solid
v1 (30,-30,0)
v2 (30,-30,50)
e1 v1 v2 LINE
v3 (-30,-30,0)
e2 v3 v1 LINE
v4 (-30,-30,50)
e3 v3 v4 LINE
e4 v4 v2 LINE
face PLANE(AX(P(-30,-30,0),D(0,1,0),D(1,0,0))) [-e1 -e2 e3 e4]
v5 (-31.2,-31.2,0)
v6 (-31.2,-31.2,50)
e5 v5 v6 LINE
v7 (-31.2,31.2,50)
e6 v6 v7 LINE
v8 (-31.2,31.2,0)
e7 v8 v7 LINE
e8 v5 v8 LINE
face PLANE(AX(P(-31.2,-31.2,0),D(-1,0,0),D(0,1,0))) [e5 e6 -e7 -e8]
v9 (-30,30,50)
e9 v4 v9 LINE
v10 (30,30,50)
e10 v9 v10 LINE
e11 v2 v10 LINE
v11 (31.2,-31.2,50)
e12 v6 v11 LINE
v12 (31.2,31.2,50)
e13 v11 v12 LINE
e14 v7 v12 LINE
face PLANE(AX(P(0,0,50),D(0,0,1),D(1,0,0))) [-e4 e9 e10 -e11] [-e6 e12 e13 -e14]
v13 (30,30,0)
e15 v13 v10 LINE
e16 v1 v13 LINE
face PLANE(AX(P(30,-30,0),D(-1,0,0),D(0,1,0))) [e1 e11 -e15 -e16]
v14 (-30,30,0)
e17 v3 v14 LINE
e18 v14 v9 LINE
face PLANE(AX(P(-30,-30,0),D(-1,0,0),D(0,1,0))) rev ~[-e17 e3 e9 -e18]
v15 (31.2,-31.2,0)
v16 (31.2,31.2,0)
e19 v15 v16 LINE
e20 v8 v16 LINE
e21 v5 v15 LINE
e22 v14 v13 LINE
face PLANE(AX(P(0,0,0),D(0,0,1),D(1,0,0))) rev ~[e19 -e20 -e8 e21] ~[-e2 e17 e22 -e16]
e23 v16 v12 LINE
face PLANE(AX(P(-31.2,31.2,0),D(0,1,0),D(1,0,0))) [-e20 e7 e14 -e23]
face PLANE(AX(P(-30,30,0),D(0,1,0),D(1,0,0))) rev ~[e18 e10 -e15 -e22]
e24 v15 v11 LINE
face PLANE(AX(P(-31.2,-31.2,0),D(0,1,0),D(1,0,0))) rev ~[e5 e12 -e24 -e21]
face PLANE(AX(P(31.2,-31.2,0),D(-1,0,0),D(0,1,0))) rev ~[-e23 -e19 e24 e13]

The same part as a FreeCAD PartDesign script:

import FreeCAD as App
import Part
import Sketcher
from FreeCAD import Vector

doc = App.newDocument("Part")
body = doc.addObject("PartDesign::Body", "Body")

sketch1 = body.newObject("Sketcher::SketchObject", "Sketch")
sketch1.AttachmentSupport = (doc.getObject("XY_Plane"), [""])
sketch1.MapMode = "FlatFace"
sketch1.addGeometry([
    Part.LineSegment(Vector(-31, 31, 0), Vector(-31, -31, 0)),
    Part.LineSegment(Vector(-31, -31, 0), Vector(31, -31, 0)),
    Part.LineSegment(Vector(31, -31, 0), Vector(31, 31, 0)),
    Part.LineSegment(Vector(31, 31, 0), Vector(-31, 31, 0)),
    Part.LineSegment(Vector(30, -30, 0), Vector(-30, -30, 0)),
    Part.LineSegment(Vector(-30, -30, 0), Vector(-30, 30, 0)),
    Part.LineSegment(Vector(-30, 30, 0), Vector(30, 30, 0)),
    Part.LineSegment(Vector(30, 30, 0), Vector(30, -30, 0)),
], False)
sketch1.addConstraint([
    Sketcher.Constraint("Coincident", 0, 2, 1, 1),
    Sketcher.Constraint("Coincident", 1, 2, 2, 1),
    Sketcher.Constraint("Coincident", 2, 2, 3, 1),
    Sketcher.Constraint("Coincident", 3, 2, 0, 1),
    Sketcher.Constraint("Coincident", 4, 2, 5, 1),
    Sketcher.Constraint("Coincident", 5, 2, 6, 1),
    Sketcher.Constraint("Coincident", 6, 2, 7, 1),
    Sketcher.Constraint("Coincident", 7, 2, 4, 1),
    Sketcher.Constraint("Vertical", 0),
    Sketcher.Constraint("Horizontal", 1),
    Sketcher.Constraint("Vertical", 2),
    Sketcher.Constraint("Horizontal", 3),
    Sketcher.Constraint("Horizontal", 4),
    Sketcher.Constraint("Vertical", 5),
    Sketcher.Constraint("Horizontal", 6),
    Sketcher.Constraint("Vertical", 7),
    Sketcher.Constraint("Symmetric", 0, 2, 2, 2, -1, 1),
    Sketcher.Constraint("Symmetric", 4, 2, 6, 2, -1, 1),
    Sketcher.Constraint("Equal", 3, 0),
    Sketcher.Constraint("Equal", 6, 5),
    Sketcher.Constraint("DistanceX", 4, 2, 4, 1, 60.0),
    Sketcher.Constraint("DistanceX", 1, 1, 1, 2, 62.4),
])
pad1 = body.newObject("PartDesign::Pad", "Pad")
pad1.Profile = sketch1
pad1.Length = 50

doc.recompute()
